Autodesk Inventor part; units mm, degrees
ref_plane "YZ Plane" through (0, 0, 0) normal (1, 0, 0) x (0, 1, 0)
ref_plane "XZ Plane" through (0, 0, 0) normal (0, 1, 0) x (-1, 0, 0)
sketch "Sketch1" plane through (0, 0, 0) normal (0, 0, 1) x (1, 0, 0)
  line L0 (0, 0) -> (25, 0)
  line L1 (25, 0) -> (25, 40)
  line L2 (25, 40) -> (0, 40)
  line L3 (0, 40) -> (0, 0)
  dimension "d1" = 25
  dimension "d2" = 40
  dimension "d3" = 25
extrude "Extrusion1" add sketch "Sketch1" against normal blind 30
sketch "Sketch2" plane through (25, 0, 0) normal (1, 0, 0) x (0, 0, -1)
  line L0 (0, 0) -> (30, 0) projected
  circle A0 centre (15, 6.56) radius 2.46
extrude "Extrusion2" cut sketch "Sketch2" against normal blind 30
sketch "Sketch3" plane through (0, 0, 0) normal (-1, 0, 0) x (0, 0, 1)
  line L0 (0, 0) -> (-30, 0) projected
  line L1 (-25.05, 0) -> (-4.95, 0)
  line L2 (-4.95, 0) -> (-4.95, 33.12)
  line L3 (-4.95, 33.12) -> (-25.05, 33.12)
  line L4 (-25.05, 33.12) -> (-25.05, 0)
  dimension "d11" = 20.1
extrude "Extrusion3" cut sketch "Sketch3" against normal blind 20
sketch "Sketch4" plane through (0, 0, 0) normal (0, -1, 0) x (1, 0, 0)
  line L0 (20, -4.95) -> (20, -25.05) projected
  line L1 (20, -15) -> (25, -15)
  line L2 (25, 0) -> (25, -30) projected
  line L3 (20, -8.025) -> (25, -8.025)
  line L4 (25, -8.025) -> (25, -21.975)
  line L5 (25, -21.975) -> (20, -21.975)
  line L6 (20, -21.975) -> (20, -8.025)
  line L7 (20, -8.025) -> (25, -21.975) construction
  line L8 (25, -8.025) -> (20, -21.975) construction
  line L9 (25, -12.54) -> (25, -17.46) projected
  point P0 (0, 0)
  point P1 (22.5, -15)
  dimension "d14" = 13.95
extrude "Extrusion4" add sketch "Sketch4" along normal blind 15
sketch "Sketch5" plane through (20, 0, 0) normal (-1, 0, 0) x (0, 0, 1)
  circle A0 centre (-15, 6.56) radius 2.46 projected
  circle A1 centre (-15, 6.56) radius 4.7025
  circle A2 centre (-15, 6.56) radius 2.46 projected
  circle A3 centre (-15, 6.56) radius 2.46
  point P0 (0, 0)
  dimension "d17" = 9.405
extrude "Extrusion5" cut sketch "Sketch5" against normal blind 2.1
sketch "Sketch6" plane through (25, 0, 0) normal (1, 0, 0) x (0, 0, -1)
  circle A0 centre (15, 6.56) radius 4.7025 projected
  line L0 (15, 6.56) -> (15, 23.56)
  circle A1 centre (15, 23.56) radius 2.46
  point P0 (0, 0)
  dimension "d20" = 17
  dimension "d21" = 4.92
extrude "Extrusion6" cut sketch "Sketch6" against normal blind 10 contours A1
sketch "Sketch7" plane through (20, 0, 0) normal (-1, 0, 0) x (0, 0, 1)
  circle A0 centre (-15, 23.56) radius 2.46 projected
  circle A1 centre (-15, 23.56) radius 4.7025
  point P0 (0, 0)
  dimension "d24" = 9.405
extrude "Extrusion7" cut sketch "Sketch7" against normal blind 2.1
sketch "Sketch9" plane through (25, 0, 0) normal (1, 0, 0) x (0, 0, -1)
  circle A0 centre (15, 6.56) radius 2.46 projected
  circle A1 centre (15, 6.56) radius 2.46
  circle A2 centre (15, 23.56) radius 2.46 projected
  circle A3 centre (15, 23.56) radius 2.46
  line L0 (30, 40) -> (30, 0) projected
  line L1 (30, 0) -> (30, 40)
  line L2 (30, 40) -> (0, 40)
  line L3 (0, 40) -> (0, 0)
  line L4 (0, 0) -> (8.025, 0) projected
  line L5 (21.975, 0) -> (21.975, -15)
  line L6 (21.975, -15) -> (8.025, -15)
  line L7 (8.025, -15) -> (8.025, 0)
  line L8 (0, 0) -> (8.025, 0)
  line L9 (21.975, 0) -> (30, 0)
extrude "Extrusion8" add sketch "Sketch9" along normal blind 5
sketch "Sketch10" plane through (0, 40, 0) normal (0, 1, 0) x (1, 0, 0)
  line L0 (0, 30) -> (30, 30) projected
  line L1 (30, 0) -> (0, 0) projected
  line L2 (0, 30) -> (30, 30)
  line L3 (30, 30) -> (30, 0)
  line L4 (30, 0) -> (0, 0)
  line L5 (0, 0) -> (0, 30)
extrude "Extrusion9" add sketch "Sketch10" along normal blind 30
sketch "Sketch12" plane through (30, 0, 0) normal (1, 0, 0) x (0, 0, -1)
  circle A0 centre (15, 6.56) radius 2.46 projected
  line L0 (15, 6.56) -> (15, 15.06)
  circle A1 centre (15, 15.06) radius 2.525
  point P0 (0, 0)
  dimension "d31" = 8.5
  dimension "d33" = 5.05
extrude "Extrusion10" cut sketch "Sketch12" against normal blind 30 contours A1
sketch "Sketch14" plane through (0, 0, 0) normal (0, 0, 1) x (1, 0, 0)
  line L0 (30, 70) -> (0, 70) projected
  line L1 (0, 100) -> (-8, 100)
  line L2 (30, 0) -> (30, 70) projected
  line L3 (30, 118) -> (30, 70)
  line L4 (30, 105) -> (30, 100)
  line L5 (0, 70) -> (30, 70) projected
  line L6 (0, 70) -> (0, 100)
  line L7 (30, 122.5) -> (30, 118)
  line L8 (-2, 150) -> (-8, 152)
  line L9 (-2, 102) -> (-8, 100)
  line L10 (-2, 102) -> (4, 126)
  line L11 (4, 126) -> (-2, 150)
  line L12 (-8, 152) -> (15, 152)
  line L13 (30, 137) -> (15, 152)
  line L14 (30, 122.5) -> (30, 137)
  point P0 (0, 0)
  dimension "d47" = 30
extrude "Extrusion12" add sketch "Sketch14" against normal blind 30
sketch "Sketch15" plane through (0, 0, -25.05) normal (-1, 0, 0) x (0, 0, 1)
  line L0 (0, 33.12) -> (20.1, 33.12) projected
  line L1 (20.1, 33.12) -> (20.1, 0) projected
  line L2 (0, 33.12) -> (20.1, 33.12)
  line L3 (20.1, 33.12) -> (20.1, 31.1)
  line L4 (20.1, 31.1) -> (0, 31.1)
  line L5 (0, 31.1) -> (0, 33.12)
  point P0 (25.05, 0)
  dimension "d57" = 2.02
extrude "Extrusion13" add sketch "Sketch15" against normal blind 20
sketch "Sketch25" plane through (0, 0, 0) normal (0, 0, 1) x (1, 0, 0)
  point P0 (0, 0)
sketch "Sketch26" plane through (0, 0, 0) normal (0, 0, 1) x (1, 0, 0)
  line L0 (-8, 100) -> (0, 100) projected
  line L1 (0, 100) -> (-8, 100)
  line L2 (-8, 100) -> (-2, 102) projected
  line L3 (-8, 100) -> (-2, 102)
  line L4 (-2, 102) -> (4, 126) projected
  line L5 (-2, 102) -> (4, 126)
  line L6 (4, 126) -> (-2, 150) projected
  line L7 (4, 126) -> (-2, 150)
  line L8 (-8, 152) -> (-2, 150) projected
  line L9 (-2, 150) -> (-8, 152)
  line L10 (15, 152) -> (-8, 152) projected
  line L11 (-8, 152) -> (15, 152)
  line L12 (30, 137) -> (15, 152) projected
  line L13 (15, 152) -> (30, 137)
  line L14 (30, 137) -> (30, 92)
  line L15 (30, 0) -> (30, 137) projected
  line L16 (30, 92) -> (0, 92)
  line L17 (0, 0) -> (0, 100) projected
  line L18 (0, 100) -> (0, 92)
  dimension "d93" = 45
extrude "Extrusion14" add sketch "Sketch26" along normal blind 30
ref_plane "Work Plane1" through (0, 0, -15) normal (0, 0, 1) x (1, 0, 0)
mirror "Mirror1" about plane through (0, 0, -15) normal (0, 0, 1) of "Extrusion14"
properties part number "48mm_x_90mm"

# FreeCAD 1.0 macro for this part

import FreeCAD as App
import Part
import Sketcher

V = App.Vector
Q = App.Units.Quantity


def add_polygon(sketch, points):
    """Adds a closed chain of lines whose ends are joined by coincident constraints."""
    first, n = sketch.GeometryCount, len(points)
    for a, b in zip(points, points[1:] + points[:1]):
        sketch.addGeometry(Part.LineSegment(App.Vector(*a, 0), App.Vector(*b, 0)), False)
    for i in range(n):
        sketch.addConstraint(Sketcher.Constraint("Coincident", first + i, 2, first + (i + 1) % n, 1))

doc = App.newDocument("Part")
params = doc.addObject("Spreadsheet::Sheet", "Params")
for row, (alias, value) in enumerate([
    ("sketch1_width", "25 mm"),
    ("sketch1_height", "40 mm"),
    ("pad1_length", "30 mm"),
    ("sketch2_diameter", "4.92 mm"),
    ("pocket1_length", "30 mm"),
    ("sketch3_height", "20.1 mm"),
    ("sketch3_width", "33.12 mm"),
    ("pocket2_length", "20 mm"),
    ("sketch4_height", "13.95 mm"),
    ("sketch4_width", "5 mm"),
    ("pad2_length", "15 mm"),
    ("sketch5_diameter", "4.92 mm"),
    ("pocket3_length", "2.1 mm"),
    ("sketch6_diameter", "4.92 mm"),
    ("pocket4_length", "10 mm"),
    ("sketch7_diameter", "4.92 mm"),
    ("pocket5_length", "2.1 mm"),
    ("sketch8_diameter", "4.92 mm"),
    ("sketch8_width", "40 mm"),
    ("sketch8_width2", "15 mm"),
    ("sketch8_height", "30 mm"),
    ("sketch8_height2", "13.95 mm"),
    ("pad3_length", "5 mm"),
    ("sketch9_width", "30 mm"),
    ("pad4_length", "30 mm"),
    ("sketch10_diameter", "5.05 mm"),
    ("pocket6_length", "30 mm"),
    ("sketch11_width", "30 mm"),
    ("sketch11_width2", "23 mm"),
    ("sketch11_width3", "8 mm"),
    ("sketch11_height", "67 mm"),
    ("pad5_length", "30 mm"),
    ("sketch12_width", "2.02 mm"),
    ("sketch12_height", "20.1 mm"),
    ("pad6_length", "20 mm"),
    ("sketch13_height", "45 mm"),
    ("sketch13_width", "8 mm"),
    ("sketch13_width2", "30 mm"),
    ("sketch13_width3", "23 mm"),
    ("pad7_length", "30 mm"),
], start=1):
    params.set(f"A{row}", alias)
    params.set(f"B{row}", "=" + value)
    params.setAlias(f"B{row}", alias)

body = doc.addObject("PartDesign::Body", "Body")

sketch1 = body.newObject("Sketcher::SketchObject", "Sketch")
sketch1.AttachmentSupport = (doc.getObject("XY_Plane"), [""])
sketch1.MapMode = "FlatFace"
add_polygon(sketch1, [(0, 40), (0, 0), (25, 0), (25, 40)])
sketch1.addConstraint([
    Sketcher.Constraint("Vertical", 0),
    Sketcher.Constraint("Horizontal", 1),
    Sketcher.Constraint("Vertical", 2),
    Sketcher.Constraint("Horizontal", 3),
    Sketcher.Constraint("Coincident", 0, 2, -1, 1),
    Sketcher.Constraint("DistanceX", 1, 1, 1, 2, 25.0),
    Sketcher.Constraint("DistanceY", 0, 2, 0, 1, 40.0),
])
sketch1.setExpression("Constraints[9]", "Params.sketch1_width")
sketch1.setExpression("Constraints[10]", "Params.sketch1_height")
pad1 = body.newObject("PartDesign::Pad", "Pad")
pad1.Profile = sketch1
pad1.setExpression("Length", "Params.pad1_length")
pad1.Reversed = True

sketch2 = body.newObject("Sketcher::SketchObject", "Sketch001")
sketch2.AttachmentSupport = (doc.getObject("YZ_Plane"), [""])
sketch2.MapMode = "FlatFace"
sketch2.AttachmentOffset = App.Placement(V(0, 0, 25), App.Rotation())
sketch2.addGeometry(Part.Circle(V(6.56, -15, 0), V(0, 0, 1), 2.46), False)
sketch2.addConstraint([
    Sketcher.Constraint("Diameter", 0, 4.92),
    Sketcher.Constraint("DistanceY", 0, 3, -1, 1, 15.0),
    Sketcher.Constraint("DistanceX", -1, 1, 0, 3, 6.56),
])
sketch2.setExpression("Constraints[0]", "Params.sketch2_diameter")
pocket1 = body.newObject("PartDesign::Pocket", "Pocket")
pocket1.Profile = sketch2
pocket1.setExpression("Length", "Params.pocket1_length")

sketch3 = body.newObject("Sketcher::SketchObject", "Sketch002")
sketch3.AttachmentSupport = (doc.getObject("YZ_Plane"), [""])
sketch3.MapMode = "FlatFace"
add_polygon(sketch3, [(0, -25.05), (0, -4.95), (33.12, -4.95), (33.12, -25.05)])
sketch3.addConstraint([
    Sketcher.Constraint("Vertical", 0),
    Sketcher.Constraint("Horizontal", 1),
    Sketcher.Constraint("Vertical", 2),
    Sketcher.Constraint("Horizontal", 3),
    Sketcher.Constraint("PointOnObject", 0, 2, -2),
    Sketcher.Constraint("DistanceY", 0, 1, 0, 2, 20.1),
    Sketcher.Constraint("DistanceX", 1, 1, 1, 2, 33.12),
    Sketcher.Constraint("DistanceY", 0, 2, -1, 1, 4.95),
])
sketch3.setExpression("Constraints[9]", "Params.sketch3_height")
sketch3.setExpression("Constraints[10]", "Params.sketch3_width")
pocket2 = body.newObject("PartDesign::Pocket", "Pocket001")
pocket2.Profile = sketch3
pocket2.setExpression("Length", "Params.pocket2_length")
pocket2.Reversed = True

sketch4 = body.newObject("Sketcher::SketchObject", "Sketch003")
sketch4.AttachmentSupport = (doc.getObject("XZ_Plane"), [""])
sketch4.MapMode = "FlatFace"
add_polygon(sketch4, [(25, -8.025), (20, -8.025), (20, -21.975), (25, -21.975)])
sketch4.addConstraint([
    Sketcher.Constraint("Horizontal", 0),
    Sketcher.Constraint("Vertical", 1),
    Sketcher.Constraint("Horizontal", 2),
    Sketcher.Constraint("Vertical", 3),
    Sketcher.Constraint("DistanceY", 1, 2, 1, 1, 13.95),
    Sketcher.Constraint("DistanceX", 0, 2, 0, 1, 5.0),
    Sketcher.Constraint("DistanceX", -1, 1, 0, 2, 20.0),
    Sketcher.Constraint("DistanceY", 0, 2, -1, 1, 8.025),
])
sketch4.setExpression("Constraints[8]", "Params.sketch4_height")
sketch4.setExpression("Constraints[9]", "Params.sketch4_width")
pad2 = body.newObject("PartDesign::Pad", "Pad001")
pad2.Profile = sketch4
pad2.setExpression("Length", "Params.pad2_length")

sketch5 = body.newObject("Sketcher::SketchObject", "Sketch004")
sketch5.AttachmentSupport = (doc.getObject("YZ_Plane"), [""])
sketch5.MapMode = "FlatFace"
sketch5.AttachmentOffset = App.Placement(V(0, 0, 20), App.Rotation())
sketch5.addGeometry([
    Part.Circle(V(6.56, -15, 0), V(0, 0, 1), 4.7025),
    Part.Circle(V(6.56, -15, 0), V(0, 0, 1), 2.46),
], False)
sketch5.addConstraint([
    Sketcher.Constraint("Coincident", 1, 3, 0, 3),
    Sketcher.Constraint("Diameter", 0, 9.405),
    Sketcher.Constraint("Diameter", 1, 4.92),
    Sketcher.Constraint("DistanceY", 0, 3, -1, 1, 15.0),
    Sketcher.Constraint("DistanceX", -1, 1, 0, 3, 6.56),
])
sketch5.setExpression("Constraints[2]", "Params.sketch5_diameter")
pocket3 = body.newObject("PartDesign::Pocket", "Pocket002")
pocket3.Profile = sketch5
pocket3.setExpression("Length", "Params.pocket3_length")
pocket3.Reversed = True

sketch6 = body.newObject("Sketcher::SketchObject", "Sketch005")
sketch6.AttachmentSupport = (doc.getObject("YZ_Plane"), [""])
sketch6.MapMode = "FlatFace"
sketch6.AttachmentOffset = App.Placement(V(0, 0, 25), App.Rotation())
sketch6.addGeometry(Part.Circle(V(23.56, -15, 0), V(0, 0, 1), 2.46), False)
sketch6.addConstraint([
    Sketcher.Constraint("Diameter", 0, 4.92),
    Sketcher.Constraint("DistanceY", 0, 3, -1, 1, 15.0),
    Sketcher.Constraint("DistanceX", -1, 1, 0, 3, 23.56),
])
sketch6.setExpression("Constraints[0]", "Params.sketch6_diameter")
pocket4 = body.newObject("PartDesign::Pocket", "Pocket003")
pocket4.Profile = sketch6
pocket4.setExpression("Length", "Params.pocket4_length")

sketch7 = body.newObject("Sketcher::SketchObject", "Sketch006")
sketch7.AttachmentSupport = (doc.getObject("YZ_Plane"), [""])
sketch7.MapMode = "FlatFace"
sketch7.AttachmentOffset = App.Placement(V(0, 0, 20), App.Rotation())
sketch7.addGeometry([
    Part.Circle(V(23.56, -15, 0), V(0, 0, 1), 4.7025),
    Part.Circle(V(23.56, -15, 0), V(0, 0, 1), 2.46),
], False)
sketch7.addConstraint([
    Sketcher.Constraint("Coincident", 1, 3, 0, 3),
    Sketcher.Constraint("Diameter", 0, 9.405),
    Sketcher.Constraint("Diameter", 1, 4.92),
    Sketcher.Constraint("DistanceY", 0, 3, -1, 1, 15.0),
    Sketcher.Constraint("DistanceX", -1, 1, 0, 3, 23.56),
])
sketch7.setExpression("Constraints[2]", "Params.sketch7_diameter")
pocket5 = body.newObject("PartDesign::Pocket", "Pocket004")
pocket5.Profile = sketch7
pocket5.setExpression("Length", "Params.pocket5_length")
pocket5.Reversed = True

sketch8 = body.newObject("Sketcher::SketchObject", "Sketch007")
sketch8.AttachmentSupport = (doc.getObject("YZ_Plane"), [""])
sketch8.MapMode = "FlatFace"
sketch8.AttachmentOffset = App.Placement(V(0, 0, 25), App.Rotation())
add_polygon(sketch8, [(0, -30), (40, -30), (40, 0), (0, 0), (0, -8.025), (-15, -8.025), (-15, -21.975), (0, -21.975)])
sketch8.addGeometry(Part.Circle(V(6.56, -15, 0), V(0, 0, 1), 2.46), False)
sketch8.addGeometry(Part.Circle(V(23.56, -15, 0), V(0, 0, 1), 2.46), False)
sketch8.addConstraint([
    Sketcher.Constraint("Horizontal", 0),
    Sketcher.Constraint("Vertical", 1),
    Sketcher.Constraint("Horizontal", 2),
    Sketcher.Constraint("Vertical", 3),
    Sketcher.Constraint("Horizontal", 4),
    Sketcher.Constraint("Vertical", 5),
    Sketcher.Constraint("Horizontal", 6),
    Sketcher.Constraint("Vertical", 7),
    Sketcher.Constraint("Coincident", 2, 2, -1, 1),
    Sketcher.Constraint("Equal", 8, 9),
    Sketcher.Constraint("PointOnObject", 6, 2, -2),
    Sketcher.Constraint("Horizontal", 8, 3, 9, 3),
    Sketcher.Constraint("Equal", 3, 7),
    Sketcher.Constraint("Diameter", 8, 4.92),
    Sketcher.Constraint("DistanceX", 0, 1, 0, 2, 40.0),
    Sketcher.Constraint("DistanceX", 4, 2, 4, 1, 15.0),
    Sketcher.Constraint("DistanceY", 1, 1, 1, 2, 30.0),
    Sketcher.Constraint("DistanceY", 8, 3, -1, 1, 15.0),
    Sketcher.Constraint("DistanceX", 8, 3, 9, 3, 17.0),
    Sketcher.Constraint("DistanceY", 5, 2, 5, 1, 13.95),
    Sketcher.Constraint("DistanceX", -1, 1, 8, 3, 6.56),
])
sketch8.setExpression("Constraints[21]", "Params.sketch8_diameter")
sketch8.setExpression("Constraints[22]", "Params.sketch8_width")
sketch8.setExpression("Constraints[23]", "Params.sketch8_width2")
sketch8.setExpression("Constraints[24]", "Params.sketch8_height")
sketch8.setExpression("Constraints[27]", "Params.sketch8_height2")
pad3 = body.newObject("PartDesign::Pad", "Pad002")
pad3.Profile = sketch8
pad3.setExpression("Length", "Params.pad3_length")

sketch9 = body.newObject("Sketcher::SketchObject", "Sketch008")
sketch9.AttachmentSupport = (doc.getObject("XZ_Plane"), [""])
sketch9.MapMode = "FlatFace"
sketch9.AttachmentOffset = App.Placement(V(0, 0, -40), App.Rotation())
add_polygon(sketch9, [(30, -30), (0, -30), (0, 0), (30, 0)])
sketch9.addConstraint([
    Sketcher.Constraint("Horizontal", 0),
    Sketcher.Constraint("Vertical", 1),
    Sketcher.Constraint("Horizontal", 2),
    Sketcher.Constraint("Vertical", 3),
    Sketcher.Constraint("Coincident", 1, 2, -1, 1),
    Sketcher.Constraint("Equal", 2, 1),
    Sketcher.Constraint("DistanceX", 0, 2, 0, 1, 30.0),
])
sketch9.setExpression("Constraints[10]", "Params.sketch9_width")
pad4 = body.newObject("PartDesign::Pad", "Pad003")
pad4.Profile = sketch9
pad4.setExpression("Length", "Params.pad4_length")
pad4.Reversed = True

sketch10 = body.newObject("Sketcher::SketchObject", "Sketch009")
sketch10.AttachmentSupport = (doc.getObject("YZ_Plane"), [""])
sketch10.MapMode = "FlatFace"
sketch10.AttachmentOffset = App.Placement(V(0, 0, 30), App.Rotation())
sketch10.addGeometry(Part.Circle(V(15.06, -15, 0), V(0, 0, 1), 2.525), False)
sketch10.addConstraint([
    Sketcher.Constraint("Diameter", 0, 5.05),
    Sketcher.Constraint("DistanceY", 0, 3, -1, 1, 15.0),
    Sketcher.Constraint("DistanceX", -1, 1, 0, 3, 15.06),
])
sketch10.setExpression("Constraints[0]", "Params.sketch10_diameter")
pocket6 = body.newObject("PartDesign::Pocket", "Pocket005")
pocket6.Profile = sketch10
pocket6.setExpression("Length", "Params.pocket6_length")

sketch11 = body.newObject("Sketcher::SketchObject", "Sketch010")
sketch11.AttachmentSupport = (doc.getObject("XY_Plane"), [""])
sketch11.MapMode = "FlatFace"
add_polygon(sketch11, [(0, 70), (30, 70), (30, 137), (15, 152), (-8, 152), (-2, 150), (4, 126), (-2, 102), (-8, 100), (0, 100)])
sketch11.addConstraint([
    Sketcher.Constraint("Horizontal", 0),
    Sketcher.Constraint("Vertical", 1),
    Sketcher.Constraint("Horizontal", 3),
    Sketcher.Constraint("Horizontal", 8),
    Sketcher.Constraint("Vertical", 9),
    Sketcher.Constraint("PointOnObject", 8, 2, -2),
    Sketcher.Constraint("Vertical", 4, 2, 6, 2),
    Sketcher.Constraint("Vertical", 3, 2, 7, 2),
    Sketcher.Constraint("Equal", 0, 9),
    Sketcher.Constraint("Equal", 5, 6),
    Sketcher.Constraint("Equal", 4, 7),
    Sketcher.Constraint("DistanceX", 0, 1, 0, 2, 30.0),
    Sketcher.Constraint("DistanceX", 3, 2, 3, 1, 23.0),
    Sketcher.Constraint("DistanceX", 8, 1, 8, 2, 8.0),
    Sketcher.Constraint("DistanceY", 1, 1, 1, 2, 67.0),
    Sketcher.Constraint("Angle", 2, Q("135 deg")),
    Sketcher.Constraint("DistanceY", -1, 1, 0, 2, 70.0),
    Sketcher.Constraint("DistanceX", 4, 2, -1, 1, 2.0),
    Sketcher.Constraint("DistanceY", -1, 1, 4, 2, 150.0),
    Sketcher.Constraint("DistanceX", -1, 1, 5, 2, 4.0),
])
sketch11.setExpression("Constraints[21]", "Params.sketch11_width")
sketch11.setExpression("Constraints[22]", "Params.sketch11_width2")
sketch11.setExpression("Constraints[23]", "Params.sketch11_width3")
sketch11.setExpression("Constraints[24]", "Params.sketch11_height")
pad5 = body.newObject("PartDesign::Pad", "Pad004")
pad5.Profile = sketch11
pad5.setExpression("Length", "Params.pad5_length")
pad5.Reversed = True

sketch12 = body.newObject("Sketcher::SketchObject", "Sketch011")
sketch12.AttachmentSupport = (doc.getObject("YZ_Plane"), [""])
sketch12.MapMode = "FlatFace"
add_polygon(sketch12, [(33.12, -4.95), (33.12, -25.05), (31.1, -25.05), (31.1, -4.95)])
sketch12.addConstraint([
    Sketcher.Constraint("Vertical", 0),
    Sketcher.Constraint("Horizontal", 1),
    Sketcher.Constraint("Vertical", 2),
    Sketcher.Constraint("Horizontal", 3),
    Sketcher.Constraint("DistanceX", 1, 2, 1, 1, 2.02),
    Sketcher.Constraint("DistanceY", 0, 2, 0, 1, 20.1),
    Sketcher.Constraint("DistanceX", -1, 1, 1, 2, 31.1),
    Sketcher.Constraint("DistanceY", 0, 2, -1, 1, 25.05),
])
sketch12.setExpression("Constraints[8]", "Params.sketch12_width")
sketch12.setExpression("Constraints[9]", "Params.sketch12_height")
pad6 = body.newObject("PartDesign::Pad", "Pad005")
pad6.Profile = sketch12
pad6.setExpression("Length", "Params.pad6_length")

sketch13 = body.newObject("Sketcher::SketchObject", "Sketch012")
sketch13.AttachmentSupport = (doc.getObject("XY_Plane"), [""])
sketch13.MapMode = "FlatFace"
add_polygon(sketch13, [(-2, 102), (-8, 100), (0, 100), (0, 92), (30, 92), (30, 137), (15, 152), (-8, 152), (-2, 150), (4, 126)])
sketch13.addConstraint([
    Sketcher.Constraint("Horizontal", 1),
    Sketcher.Constraint("Vertical", 2),
    Sketcher.Constraint("Horizontal", 3),
    Sketcher.Constraint("Vertical", 4),
    Sketcher.Constraint("Horizontal", 6),
    Sketcher.Constraint("PointOnObject", 1, 2, -2),
    Sketcher.Constraint("Vertical", 0, 2, 6, 2),
    Sketcher.Constraint("Vertical", 7, 2, 9, 2),
    Sketcher.Constraint("Equal", 1, 2),
    Sketcher.Constraint("Equal", 0, 7),
    Sketcher.Constraint("Equal", 8, 9),
    Sketcher.Constraint("DistanceY", 4, 1, 4, 2, 45.0),
    Sketcher.Constraint("DistanceX", 1, 1, 1, 2, 8.0),
    Sketcher.Constraint("DistanceX", 3, 1, 3, 2, 30.0),
    Sketcher.Constraint("DistanceX", 6, 2, 6, 1, 23.0),
    Sketcher.Constraint("Angle", 5, Q("135 deg")),
    Sketcher.Constraint("DistanceY", -1, 1, 0, 2, 100.0),
    Sketcher.Constraint("DistanceX", 7, 2, -1, 1, 2.0),
    Sketcher.Constraint("DistanceY", -1, 1, 7, 2, 150.0),
    Sketcher.Constraint("DistanceX", -1, 1, 8, 2, 4.0),
])
sketch13.setExpression("Constraints[21]", "Params.sketch13_height")
sketch13.setExpression("Constraints[22]", "Params.sketch13_width")
sketch13.setExpression("Constraints[23]", "Params.sketch13_width2")
sketch13.setExpression("Constraints[24]", "Params.sketch13_width3")
pad7 = body.newObject("PartDesign::Pad", "Pad006")
pad7.Profile = sketch13
pad7.setExpression("Length", "Params.pad7_length")
doc.recompute()

datumplane = body.newObject("PartDesign::Plane", "DatumPlane")
datumplane.AttachmentSupport = (doc.getObject("XY_Plane"), [""])
datumplane.MapMode = "FlatFace"
datumplane.AttachmentOffset = App.Placement(V(0, 0, -15), App.Rotation())
mirrored = body.newObject("PartDesign::Mirrored", "Mirrored")
mirrored.Originals = [pad7]
mirrored.MirrorPlane = (datumplane, [""])
body.Tip = mirrored

doc.recompute()
